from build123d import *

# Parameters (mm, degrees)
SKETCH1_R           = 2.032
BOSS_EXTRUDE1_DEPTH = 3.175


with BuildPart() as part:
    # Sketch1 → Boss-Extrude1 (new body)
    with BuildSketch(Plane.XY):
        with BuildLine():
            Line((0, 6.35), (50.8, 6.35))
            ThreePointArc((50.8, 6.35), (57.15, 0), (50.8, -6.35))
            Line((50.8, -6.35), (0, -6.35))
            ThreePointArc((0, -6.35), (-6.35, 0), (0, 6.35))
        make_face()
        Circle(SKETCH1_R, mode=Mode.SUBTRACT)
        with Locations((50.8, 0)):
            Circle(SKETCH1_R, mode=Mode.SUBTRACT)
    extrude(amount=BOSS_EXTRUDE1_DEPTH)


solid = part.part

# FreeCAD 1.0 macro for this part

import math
import FreeCAD as App
import Part
import Sketcher

V = App.Vector
Q = App.Units.Quantity

doc = App.newDocument("Part")
body = doc.addObject("PartDesign::Body", "Body")

# Sketch on XY plane
sketch1 = body.newObject("Sketcher::SketchObject", "Sketch")
sketch1.AttachmentSupport = (doc.getObject("XY_Plane"), [""])
sketch1.MapMode = "FlatFace"
sketch1.addGeometry(Part.LineSegment(V(50.8, 6.35, 0), V(0, 6.35, 0)), False)
sketch1.addGeometry(Part.ArcOfCircle(Part.Circle(V(0, 0, 0), V(0, 0, 1), 6.35), math.radians(90), math.radians(270)), False)
sketch1.addGeometry(Part.LineSegment(V(0, -6.35, 0), V(50.8, -6.35, 0)), False)
sketch1.addGeometry(Part.ArcOfCircle(Part.Circle(V(50.8, 0, 0), V(0, 0, 1), 6.35), math.radians(-90), math.radians(90)), False)
sketch1.addGeometry(Part.Circle(V(50.8, 0, 0), V(0, 0, 1), 2.032), False)
sketch1.addGeometry(Part.Circle(V(0, 0, 0), V(0, 0, 1), 2.032), False)
sketch1.addConstraint(Sketcher.Constraint("Tangent", 0, 2, 1, 1))
sketch1.addConstraint(Sketcher.Constraint("Tangent", 1, 2, 2, 1))
sketch1.addConstraint(Sketcher.Constraint("Tangent", 2, 2, 3, 1))
sketch1.addConstraint(Sketcher.Constraint("Tangent", 3, 2, 0, 1))
sketch1.addConstraint(Sketcher.Constraint("Horizontal", 0))
sketch1.addConstraint(Sketcher.Constraint("Horizontal", 2))
sketch1.addConstraint(Sketcher.Constraint("Coincident", 1, 3, -1, 1))
sketch1.addConstraint(Sketcher.Constraint("Coincident", 5, 3, -1, 1))
sketch1.addConstraint(Sketcher.Constraint("Coincident", 4, 3, 3, 3))
sketch1.addConstraint(Sketcher.Constraint("Equal", 4, 5))
sketch1.addConstraint(Sketcher.Constraint("Diameter", 4, Q("0.16 in")))
sketch1.addConstraint(Sketcher.Constraint("DistanceX", 0, 2, 0, 1, Q("2 in")))
sketch1.addConstraint(Sketcher.Constraint("Radius", 1, Q("0.25 in")))
pad1 = body.newObject("PartDesign::Pad", "Pad")
pad1.Profile = sketch1
pad1.Length = Q("0.125 in")

doc.recompute()
